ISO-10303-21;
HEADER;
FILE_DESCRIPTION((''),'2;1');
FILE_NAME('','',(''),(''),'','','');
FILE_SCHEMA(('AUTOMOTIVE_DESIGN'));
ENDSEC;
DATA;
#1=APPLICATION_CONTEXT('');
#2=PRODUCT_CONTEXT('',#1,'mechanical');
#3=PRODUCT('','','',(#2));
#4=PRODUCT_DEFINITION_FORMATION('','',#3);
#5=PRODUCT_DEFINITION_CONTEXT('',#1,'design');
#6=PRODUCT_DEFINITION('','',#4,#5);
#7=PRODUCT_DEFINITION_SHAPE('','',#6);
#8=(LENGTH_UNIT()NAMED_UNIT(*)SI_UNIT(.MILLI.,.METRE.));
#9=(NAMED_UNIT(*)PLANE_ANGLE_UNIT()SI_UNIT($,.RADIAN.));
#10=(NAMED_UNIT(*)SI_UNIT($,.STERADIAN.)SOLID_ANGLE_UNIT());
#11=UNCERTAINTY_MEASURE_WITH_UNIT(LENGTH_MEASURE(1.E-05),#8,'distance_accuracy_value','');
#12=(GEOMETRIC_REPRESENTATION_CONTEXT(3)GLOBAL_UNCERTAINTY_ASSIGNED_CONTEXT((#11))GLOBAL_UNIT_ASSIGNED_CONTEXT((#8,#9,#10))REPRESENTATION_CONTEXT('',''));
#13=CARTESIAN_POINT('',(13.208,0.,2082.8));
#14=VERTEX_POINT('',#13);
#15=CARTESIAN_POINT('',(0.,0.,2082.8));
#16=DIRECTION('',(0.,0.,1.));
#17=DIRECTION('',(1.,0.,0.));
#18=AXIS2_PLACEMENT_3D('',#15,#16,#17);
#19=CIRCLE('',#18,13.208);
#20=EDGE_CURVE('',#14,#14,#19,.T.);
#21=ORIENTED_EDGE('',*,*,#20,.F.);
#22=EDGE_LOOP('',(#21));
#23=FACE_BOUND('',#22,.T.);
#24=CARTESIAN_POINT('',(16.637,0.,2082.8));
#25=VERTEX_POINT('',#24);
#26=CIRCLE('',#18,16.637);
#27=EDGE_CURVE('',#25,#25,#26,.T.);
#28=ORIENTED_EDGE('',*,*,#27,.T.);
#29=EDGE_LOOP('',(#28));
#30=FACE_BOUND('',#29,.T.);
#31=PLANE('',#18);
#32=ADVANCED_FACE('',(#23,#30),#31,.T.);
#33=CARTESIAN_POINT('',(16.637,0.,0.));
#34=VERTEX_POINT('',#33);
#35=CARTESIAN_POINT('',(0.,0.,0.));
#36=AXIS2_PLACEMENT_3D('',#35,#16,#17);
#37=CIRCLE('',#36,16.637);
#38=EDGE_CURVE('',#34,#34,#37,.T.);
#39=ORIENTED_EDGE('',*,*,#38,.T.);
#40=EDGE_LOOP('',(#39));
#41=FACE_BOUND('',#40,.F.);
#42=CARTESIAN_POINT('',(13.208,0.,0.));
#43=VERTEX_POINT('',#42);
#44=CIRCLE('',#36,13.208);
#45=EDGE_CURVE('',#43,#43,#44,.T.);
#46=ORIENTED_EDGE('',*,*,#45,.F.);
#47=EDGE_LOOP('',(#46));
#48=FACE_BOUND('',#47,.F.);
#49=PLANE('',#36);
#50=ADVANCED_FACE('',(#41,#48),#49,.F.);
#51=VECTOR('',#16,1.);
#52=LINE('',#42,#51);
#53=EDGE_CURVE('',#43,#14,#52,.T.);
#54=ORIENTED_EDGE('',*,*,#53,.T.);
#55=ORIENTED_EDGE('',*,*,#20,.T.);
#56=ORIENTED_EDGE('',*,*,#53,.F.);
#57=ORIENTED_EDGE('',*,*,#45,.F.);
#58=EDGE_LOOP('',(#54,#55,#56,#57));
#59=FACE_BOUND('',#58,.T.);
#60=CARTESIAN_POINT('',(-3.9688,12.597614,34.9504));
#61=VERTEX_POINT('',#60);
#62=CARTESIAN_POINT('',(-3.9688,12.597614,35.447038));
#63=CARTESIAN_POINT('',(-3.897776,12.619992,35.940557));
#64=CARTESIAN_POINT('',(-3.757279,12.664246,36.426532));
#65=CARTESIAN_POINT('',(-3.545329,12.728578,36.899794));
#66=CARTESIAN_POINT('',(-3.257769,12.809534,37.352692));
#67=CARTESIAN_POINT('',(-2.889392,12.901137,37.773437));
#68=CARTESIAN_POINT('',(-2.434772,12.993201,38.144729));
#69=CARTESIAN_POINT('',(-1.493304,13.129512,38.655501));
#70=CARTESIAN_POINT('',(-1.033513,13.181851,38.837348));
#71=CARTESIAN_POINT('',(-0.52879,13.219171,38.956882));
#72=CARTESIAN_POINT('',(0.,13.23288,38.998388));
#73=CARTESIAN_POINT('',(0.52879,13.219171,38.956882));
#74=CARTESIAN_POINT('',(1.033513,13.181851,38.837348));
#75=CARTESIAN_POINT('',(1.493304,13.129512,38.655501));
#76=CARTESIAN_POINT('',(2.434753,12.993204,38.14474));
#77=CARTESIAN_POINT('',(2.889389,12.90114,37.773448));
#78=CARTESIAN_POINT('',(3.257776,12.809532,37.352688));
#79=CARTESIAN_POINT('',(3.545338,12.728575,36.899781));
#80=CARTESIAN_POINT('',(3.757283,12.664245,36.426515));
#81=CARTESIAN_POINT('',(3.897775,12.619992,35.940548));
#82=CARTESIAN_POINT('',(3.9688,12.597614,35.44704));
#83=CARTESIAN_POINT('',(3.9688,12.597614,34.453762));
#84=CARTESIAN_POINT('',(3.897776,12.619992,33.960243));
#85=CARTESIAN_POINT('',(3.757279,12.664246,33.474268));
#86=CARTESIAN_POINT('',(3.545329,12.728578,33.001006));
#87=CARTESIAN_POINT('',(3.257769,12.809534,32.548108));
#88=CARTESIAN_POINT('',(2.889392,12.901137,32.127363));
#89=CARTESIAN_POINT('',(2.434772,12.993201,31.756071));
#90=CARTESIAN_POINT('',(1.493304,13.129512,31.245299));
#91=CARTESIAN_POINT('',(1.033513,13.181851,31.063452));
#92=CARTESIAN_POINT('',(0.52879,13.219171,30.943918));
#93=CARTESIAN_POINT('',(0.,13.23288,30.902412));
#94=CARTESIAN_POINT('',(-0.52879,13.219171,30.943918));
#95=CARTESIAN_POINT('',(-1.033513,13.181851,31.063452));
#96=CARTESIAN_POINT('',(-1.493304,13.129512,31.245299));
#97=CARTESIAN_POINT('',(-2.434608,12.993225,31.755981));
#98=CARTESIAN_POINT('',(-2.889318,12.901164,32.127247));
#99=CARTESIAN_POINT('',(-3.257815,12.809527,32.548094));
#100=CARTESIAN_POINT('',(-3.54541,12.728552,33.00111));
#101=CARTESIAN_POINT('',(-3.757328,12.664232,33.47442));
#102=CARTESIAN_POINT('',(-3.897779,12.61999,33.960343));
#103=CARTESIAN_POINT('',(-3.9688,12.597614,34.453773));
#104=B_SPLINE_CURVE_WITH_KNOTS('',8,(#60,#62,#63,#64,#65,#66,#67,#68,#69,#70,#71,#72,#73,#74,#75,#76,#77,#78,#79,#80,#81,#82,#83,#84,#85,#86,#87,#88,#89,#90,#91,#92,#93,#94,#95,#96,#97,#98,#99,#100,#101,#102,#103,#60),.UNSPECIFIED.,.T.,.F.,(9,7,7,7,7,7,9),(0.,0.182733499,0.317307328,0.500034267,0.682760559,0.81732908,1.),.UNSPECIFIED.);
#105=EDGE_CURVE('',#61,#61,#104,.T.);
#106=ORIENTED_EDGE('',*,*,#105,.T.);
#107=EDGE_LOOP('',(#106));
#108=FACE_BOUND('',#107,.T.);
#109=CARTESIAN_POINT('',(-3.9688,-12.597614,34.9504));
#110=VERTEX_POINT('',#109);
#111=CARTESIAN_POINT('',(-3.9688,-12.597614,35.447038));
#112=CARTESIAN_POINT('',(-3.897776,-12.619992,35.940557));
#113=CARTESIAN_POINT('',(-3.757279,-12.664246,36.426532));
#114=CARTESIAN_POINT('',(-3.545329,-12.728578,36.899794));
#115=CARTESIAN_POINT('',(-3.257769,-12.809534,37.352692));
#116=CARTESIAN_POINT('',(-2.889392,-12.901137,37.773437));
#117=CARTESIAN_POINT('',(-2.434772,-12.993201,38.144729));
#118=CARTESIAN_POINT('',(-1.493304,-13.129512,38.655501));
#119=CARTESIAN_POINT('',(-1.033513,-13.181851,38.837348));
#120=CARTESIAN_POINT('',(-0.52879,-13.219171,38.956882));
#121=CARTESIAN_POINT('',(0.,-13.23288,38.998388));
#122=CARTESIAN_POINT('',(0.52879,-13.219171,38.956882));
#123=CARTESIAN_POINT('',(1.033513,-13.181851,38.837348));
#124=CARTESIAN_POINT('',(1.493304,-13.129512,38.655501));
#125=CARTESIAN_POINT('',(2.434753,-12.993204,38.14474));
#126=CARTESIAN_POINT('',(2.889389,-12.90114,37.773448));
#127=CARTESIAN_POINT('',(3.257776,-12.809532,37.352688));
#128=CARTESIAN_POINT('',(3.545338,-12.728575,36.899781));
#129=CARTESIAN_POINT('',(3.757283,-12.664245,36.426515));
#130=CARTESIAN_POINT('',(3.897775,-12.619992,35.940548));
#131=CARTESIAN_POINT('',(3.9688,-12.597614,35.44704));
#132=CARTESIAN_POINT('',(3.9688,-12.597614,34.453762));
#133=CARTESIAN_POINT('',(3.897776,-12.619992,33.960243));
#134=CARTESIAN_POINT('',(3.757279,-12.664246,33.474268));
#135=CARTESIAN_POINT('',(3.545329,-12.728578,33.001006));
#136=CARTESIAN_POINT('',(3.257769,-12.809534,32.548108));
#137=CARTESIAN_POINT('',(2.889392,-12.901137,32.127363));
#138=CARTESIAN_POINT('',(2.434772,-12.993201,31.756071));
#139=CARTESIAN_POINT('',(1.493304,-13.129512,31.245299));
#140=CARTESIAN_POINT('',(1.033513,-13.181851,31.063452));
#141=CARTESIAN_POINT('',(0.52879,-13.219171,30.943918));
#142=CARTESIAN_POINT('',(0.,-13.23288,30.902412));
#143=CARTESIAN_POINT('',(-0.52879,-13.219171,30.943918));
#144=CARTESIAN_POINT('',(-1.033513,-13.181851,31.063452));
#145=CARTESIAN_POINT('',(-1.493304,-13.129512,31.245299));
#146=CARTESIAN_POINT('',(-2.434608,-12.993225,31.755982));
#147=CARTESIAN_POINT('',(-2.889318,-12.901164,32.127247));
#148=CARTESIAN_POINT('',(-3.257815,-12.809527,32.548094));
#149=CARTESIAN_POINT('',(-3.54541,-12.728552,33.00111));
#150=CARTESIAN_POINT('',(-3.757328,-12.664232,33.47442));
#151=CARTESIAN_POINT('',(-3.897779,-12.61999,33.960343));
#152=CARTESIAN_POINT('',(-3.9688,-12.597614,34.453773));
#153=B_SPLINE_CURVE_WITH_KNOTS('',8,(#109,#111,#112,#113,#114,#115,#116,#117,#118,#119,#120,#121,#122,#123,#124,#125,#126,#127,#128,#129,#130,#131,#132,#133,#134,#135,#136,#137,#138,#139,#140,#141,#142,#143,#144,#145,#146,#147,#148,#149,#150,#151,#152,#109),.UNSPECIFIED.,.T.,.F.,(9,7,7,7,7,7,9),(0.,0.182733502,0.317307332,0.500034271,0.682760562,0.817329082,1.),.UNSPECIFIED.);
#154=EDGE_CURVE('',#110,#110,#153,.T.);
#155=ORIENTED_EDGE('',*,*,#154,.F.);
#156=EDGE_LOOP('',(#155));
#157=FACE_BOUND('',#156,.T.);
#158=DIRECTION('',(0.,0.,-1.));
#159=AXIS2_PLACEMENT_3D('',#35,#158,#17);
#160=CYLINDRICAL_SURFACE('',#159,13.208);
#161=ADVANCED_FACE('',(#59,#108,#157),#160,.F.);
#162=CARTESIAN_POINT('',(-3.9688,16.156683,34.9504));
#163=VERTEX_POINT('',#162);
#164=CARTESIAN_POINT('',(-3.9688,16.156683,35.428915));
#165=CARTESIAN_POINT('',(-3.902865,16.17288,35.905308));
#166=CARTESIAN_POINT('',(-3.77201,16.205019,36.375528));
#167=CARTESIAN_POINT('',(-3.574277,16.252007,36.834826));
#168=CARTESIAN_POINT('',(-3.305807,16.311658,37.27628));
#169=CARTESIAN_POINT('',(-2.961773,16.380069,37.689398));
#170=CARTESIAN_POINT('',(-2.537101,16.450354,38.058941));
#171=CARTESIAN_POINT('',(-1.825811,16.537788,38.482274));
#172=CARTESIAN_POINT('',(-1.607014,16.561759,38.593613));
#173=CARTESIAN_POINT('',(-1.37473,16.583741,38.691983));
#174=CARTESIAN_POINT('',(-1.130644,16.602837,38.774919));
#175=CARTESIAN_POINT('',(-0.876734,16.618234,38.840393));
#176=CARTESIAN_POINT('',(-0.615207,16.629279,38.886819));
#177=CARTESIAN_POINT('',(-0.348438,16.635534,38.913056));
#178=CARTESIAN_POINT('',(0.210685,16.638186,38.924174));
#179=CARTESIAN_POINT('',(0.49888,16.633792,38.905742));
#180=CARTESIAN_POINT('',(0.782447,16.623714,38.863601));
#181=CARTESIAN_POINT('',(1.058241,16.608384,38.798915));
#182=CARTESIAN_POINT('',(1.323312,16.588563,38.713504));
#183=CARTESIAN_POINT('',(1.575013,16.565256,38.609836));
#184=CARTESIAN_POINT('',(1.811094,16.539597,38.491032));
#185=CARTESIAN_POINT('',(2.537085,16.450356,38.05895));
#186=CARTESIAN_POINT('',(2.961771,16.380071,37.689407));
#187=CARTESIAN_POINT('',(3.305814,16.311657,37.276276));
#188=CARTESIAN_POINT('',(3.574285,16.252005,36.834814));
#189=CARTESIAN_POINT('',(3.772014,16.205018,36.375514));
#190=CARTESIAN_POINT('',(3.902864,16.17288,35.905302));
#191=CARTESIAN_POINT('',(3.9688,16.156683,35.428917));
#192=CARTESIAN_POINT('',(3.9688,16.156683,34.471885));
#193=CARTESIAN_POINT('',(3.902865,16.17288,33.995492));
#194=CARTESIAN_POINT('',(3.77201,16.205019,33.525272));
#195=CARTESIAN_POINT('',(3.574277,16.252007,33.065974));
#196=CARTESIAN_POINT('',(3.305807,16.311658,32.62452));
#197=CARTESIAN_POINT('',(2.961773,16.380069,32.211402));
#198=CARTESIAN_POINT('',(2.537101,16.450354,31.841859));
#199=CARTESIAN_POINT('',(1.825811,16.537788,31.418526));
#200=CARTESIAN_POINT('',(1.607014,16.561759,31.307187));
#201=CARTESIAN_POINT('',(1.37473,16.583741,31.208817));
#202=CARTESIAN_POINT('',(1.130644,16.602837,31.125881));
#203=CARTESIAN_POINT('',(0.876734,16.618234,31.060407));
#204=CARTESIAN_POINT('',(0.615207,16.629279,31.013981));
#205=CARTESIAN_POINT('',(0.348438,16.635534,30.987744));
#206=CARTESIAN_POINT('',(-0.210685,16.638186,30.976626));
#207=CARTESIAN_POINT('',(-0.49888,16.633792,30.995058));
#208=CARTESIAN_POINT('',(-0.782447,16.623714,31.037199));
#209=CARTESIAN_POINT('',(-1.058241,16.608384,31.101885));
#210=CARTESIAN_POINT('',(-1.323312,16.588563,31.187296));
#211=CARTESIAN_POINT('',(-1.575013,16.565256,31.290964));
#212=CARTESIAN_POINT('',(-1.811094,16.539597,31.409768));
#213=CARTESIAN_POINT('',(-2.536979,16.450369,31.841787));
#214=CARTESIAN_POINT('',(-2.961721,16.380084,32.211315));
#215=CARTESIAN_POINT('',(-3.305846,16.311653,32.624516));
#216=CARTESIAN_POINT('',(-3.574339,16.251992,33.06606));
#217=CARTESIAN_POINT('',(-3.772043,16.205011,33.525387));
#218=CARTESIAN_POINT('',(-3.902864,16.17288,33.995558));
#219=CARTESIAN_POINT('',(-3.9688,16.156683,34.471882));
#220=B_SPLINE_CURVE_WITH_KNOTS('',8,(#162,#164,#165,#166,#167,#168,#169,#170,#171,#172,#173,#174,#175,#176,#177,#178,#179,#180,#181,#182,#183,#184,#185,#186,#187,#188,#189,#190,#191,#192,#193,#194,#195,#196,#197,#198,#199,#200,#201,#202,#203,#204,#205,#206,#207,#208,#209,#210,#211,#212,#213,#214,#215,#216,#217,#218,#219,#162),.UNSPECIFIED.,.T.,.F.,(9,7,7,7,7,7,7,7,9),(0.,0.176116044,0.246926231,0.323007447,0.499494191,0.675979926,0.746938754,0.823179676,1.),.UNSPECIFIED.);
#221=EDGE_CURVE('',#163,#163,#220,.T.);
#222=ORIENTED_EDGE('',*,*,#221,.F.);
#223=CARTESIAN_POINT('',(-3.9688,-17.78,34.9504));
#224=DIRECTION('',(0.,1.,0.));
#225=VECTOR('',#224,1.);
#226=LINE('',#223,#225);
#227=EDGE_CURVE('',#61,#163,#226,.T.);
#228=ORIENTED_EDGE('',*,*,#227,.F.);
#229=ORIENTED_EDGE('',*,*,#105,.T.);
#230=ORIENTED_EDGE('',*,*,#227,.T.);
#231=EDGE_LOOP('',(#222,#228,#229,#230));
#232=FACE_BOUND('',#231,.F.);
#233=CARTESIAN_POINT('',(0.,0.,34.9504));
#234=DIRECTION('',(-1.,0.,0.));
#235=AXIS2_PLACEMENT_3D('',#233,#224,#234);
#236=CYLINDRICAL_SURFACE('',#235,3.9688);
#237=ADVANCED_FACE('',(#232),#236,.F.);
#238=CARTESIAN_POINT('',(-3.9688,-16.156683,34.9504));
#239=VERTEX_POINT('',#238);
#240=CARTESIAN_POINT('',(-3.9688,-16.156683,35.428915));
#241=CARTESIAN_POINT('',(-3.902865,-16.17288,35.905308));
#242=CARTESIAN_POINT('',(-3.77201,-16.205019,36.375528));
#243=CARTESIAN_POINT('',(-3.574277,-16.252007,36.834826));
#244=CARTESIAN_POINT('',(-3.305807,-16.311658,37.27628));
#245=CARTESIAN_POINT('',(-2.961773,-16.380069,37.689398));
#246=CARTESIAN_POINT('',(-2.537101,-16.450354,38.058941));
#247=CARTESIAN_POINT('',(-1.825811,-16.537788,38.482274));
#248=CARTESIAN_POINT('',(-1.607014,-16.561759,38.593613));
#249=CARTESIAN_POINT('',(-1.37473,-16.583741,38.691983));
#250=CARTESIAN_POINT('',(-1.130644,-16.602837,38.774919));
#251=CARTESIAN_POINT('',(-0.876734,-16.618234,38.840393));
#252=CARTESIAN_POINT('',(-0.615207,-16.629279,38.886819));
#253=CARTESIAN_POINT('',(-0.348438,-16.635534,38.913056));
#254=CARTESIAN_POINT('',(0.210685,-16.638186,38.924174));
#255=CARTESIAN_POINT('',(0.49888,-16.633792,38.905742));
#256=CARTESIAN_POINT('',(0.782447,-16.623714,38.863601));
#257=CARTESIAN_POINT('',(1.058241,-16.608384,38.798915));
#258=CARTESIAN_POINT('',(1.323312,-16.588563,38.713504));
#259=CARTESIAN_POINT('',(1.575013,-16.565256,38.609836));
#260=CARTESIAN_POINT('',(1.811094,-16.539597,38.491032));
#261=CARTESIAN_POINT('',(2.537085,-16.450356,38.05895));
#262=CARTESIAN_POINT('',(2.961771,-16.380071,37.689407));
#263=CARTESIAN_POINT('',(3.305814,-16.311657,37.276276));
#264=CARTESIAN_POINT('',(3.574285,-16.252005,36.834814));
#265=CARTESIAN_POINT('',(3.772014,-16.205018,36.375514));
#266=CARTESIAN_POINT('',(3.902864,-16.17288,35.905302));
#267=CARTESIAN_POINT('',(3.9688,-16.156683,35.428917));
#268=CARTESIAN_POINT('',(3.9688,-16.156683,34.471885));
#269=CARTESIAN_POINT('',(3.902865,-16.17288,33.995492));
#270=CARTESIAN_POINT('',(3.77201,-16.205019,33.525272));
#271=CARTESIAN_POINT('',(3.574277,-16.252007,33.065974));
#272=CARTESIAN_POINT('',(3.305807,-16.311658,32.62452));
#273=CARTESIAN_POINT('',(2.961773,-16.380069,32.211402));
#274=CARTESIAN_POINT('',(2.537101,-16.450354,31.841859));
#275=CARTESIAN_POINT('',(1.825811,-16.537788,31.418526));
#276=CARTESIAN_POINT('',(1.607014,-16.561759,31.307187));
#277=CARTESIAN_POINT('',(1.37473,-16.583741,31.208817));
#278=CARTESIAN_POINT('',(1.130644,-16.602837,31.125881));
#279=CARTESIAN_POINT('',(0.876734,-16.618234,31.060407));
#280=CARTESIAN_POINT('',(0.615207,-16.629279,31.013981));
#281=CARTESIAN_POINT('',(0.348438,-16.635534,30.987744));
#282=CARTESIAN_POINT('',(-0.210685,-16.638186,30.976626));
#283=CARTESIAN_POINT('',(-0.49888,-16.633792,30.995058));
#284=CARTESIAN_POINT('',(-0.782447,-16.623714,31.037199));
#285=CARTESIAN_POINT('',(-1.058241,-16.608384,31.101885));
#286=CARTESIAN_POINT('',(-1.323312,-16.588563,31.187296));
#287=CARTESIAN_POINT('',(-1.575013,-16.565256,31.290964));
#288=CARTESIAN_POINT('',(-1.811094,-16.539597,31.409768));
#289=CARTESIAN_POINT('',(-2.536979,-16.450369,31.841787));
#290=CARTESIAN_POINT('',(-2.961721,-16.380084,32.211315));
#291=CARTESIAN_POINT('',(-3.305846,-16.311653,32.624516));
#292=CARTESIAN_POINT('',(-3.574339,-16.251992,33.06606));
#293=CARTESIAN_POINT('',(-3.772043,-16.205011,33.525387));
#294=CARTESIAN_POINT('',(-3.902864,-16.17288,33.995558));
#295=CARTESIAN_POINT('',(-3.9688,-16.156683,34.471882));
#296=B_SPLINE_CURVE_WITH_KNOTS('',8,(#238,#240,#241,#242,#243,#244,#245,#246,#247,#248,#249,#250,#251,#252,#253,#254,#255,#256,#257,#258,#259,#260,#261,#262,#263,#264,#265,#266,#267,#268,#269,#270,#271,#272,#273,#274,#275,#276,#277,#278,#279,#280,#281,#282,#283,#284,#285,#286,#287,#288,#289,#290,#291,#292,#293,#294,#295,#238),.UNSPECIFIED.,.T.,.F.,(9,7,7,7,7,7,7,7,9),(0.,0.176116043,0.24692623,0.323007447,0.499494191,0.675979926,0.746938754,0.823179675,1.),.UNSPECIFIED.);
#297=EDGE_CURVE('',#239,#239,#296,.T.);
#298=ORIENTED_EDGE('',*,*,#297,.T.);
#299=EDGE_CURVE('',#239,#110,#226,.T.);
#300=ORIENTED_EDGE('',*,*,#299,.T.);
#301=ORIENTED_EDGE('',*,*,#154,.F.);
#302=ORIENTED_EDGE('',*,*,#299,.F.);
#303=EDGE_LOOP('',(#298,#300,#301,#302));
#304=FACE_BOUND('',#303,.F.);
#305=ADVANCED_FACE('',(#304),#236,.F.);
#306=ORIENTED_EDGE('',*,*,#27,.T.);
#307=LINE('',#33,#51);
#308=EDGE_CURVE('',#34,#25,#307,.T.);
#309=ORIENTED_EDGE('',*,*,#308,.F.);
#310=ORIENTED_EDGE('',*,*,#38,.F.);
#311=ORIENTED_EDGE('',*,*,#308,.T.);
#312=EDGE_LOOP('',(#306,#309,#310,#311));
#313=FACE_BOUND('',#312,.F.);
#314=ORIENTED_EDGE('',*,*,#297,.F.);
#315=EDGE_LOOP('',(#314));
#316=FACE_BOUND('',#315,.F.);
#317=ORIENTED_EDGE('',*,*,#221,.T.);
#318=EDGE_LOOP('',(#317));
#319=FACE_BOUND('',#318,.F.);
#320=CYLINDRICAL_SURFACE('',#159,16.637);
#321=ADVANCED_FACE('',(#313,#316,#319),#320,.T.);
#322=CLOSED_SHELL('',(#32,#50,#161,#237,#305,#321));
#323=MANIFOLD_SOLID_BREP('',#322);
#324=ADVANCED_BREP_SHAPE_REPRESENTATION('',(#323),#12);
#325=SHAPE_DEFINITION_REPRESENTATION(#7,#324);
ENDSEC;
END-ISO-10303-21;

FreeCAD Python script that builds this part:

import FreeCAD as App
import Part
import Sketcher
Q = App.Units.Quantity

doc = App.newDocument("Part")
body = doc.addObject("PartDesign::Body", "Body")

# Sketch on XY plane
sketch1 = body.newObject("Sketcher::SketchObject", "Sketch")
sketch1.AttachmentSupport = (doc.getObject("XY_Plane"), [""])
sketch1.MapMode = "FlatFace"
sketch1.addGeometry([
    Part.Circle(App.Vector(0, 0, 0), App.Vector(0, 0, 1), 17),
    Part.Circle(App.Vector(0, 0, 0), App.Vector(0, 0, 1), 13),
], False)
sketch1.addConstraint([
    Sketcher.Constraint("Coincident", 0, 3, -1, 1),
    Sketcher.Constraint("Coincident", 1, 3, -1, 1),
    Sketcher.Constraint("Diameter", 0, Q("1.31 in")),
    Sketcher.Constraint("Diameter", 1, Q("1.04 in")),
])
pad1 = body.newObject("PartDesign::Pad", "Pad")
pad1.Profile = sketch1
pad1.Length = Q("82 in")

# Sketch on XZ plane
sketch2 = body.newObject("Sketcher::SketchObject", "Sketch001")
sketch2.AttachmentSupport = (doc.getObject("XZ_Plane"), [""])
sketch2.MapMode = "FlatFace"
sketch2.addGeometry(Part.Circle(App.Vector(0, 35, 0), App.Vector(0, 0, 1), 4), False)
sketch2.addConstraint([
    Sketcher.Constraint("PointOnObject", 0, 3, -2),
    Sketcher.Constraint("Diameter", 0, Q("0.3125 in")),
    Sketcher.Constraint("DistanceY", -1, 1, 0, 3, Q("1.376 in")),
])
pocket1 = body.newObject("PartDesign::Pocket", "Pocket")
pocket1.Profile = sketch2
pocket1.Length = Q("1.4 in")
pocket1.Midplane = True

doc.recompute()
